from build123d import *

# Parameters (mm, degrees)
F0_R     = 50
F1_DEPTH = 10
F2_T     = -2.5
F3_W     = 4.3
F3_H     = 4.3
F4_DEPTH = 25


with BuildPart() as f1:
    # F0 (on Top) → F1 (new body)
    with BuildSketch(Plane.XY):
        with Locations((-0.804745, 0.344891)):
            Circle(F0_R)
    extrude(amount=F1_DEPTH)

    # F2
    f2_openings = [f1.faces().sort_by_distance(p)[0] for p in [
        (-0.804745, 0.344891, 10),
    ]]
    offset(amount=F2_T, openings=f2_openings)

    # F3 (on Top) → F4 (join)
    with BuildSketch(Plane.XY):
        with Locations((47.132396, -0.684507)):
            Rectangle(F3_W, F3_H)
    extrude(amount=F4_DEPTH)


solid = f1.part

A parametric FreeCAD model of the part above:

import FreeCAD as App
import Part
import Sketcher


def faces_at(feature, points):
    """Names of the faces that lie closest to the given points."""
    faces = feature.Shape.Faces
    near = lambda p: min(range(len(faces)), key=lambda i: faces[i].distToShape(Part.Vertex(*p))[0])
    return sorted({f"Face{near(p) + 1}" for p in points})

doc = App.newDocument("Part")
params = doc.addObject("Spreadsheet::Sheet", "Params")
for row, (alias, value) in enumerate([
    ("sketch1_diameter", "100 mm"),
    ("pad1_length", "10 mm"),
    ("thickness_wall", "2.5 mm"),
    ("sketch2_width", "4.3 mm"),
    ("pad2_length", "25 mm"),
], start=1):
    params.set(f"A{row}", alias)
    params.set(f"B{row}", "=" + value)
    params.setAlias(f"B{row}", alias)

body = doc.addObject("PartDesign::Body", "Body")

sketch1 = doc.addObject("Sketcher::SketchObject", "Sketch")
body.addObject(sketch1)
sketch1.AttachmentSupport = (doc.XY_Plane, [""])
sketch1.MapMode = "FlatFace"
sketch1.addGeometry(Part.Circle(App.Vector(-1, 0, 0), App.Vector(0, 0, 1), 50), False)
sketch1.addConstraint(Sketcher.Constraint("Diameter", 0, 100.0))
sketch1.addConstraint(Sketcher.Constraint("DistanceY", -1, 1, 0, 3, 0.344891))
sketch1.addConstraint(Sketcher.Constraint("DistanceX", 0, 3, -1, 1, 0.804745))
sketch1.setExpression("Constraints[0]", "Params.sketch1_diameter")
pad1 = doc.addObject("PartDesign::Pad", "Pad")
body.addObject(pad1)
pad1.Profile = sketch1
pad1.setExpression("Length", "Params.pad1_length")
doc.recompute()

thickness = doc.addObject("PartDesign::Thickness", "Thickness")
body.addObject(thickness)
thickness.Base = (pad1, faces_at(pad1, [(-0.805, 0.345, 10)]))
thickness.setExpression("Value", "Params.thickness_wall")
thickness.Reversed = True
thickness.Join = "Arc"

sketch2 = doc.addObject("Sketcher::SketchObject", "Sketch001")
body.addObject(sketch2)
sketch2.AttachmentSupport = (doc.XY_Plane, [""])
sketch2.MapMode = "FlatFace"
sketch2.addGeometry(Part.LineSegment(App.Vector(45, 1.5, 0), App.Vector(45, -2.8, 0)), False)
sketch2.addGeometry(Part.LineSegment(App.Vector(45, -2.8, 0), App.Vector(49.3, -2.8, 0)), False)
sketch2.addGeometry(Part.LineSegment(App.Vector(49.3, -2.8, 0), App.Vector(49.3, 1.5, 0)), False)
sketch2.addGeometry(Part.LineSegment(App.Vector(49.3, 1.5, 0), App.Vector(45, 1.5, 0)), False)
sketch2.addConstraint(Sketcher.Constraint("Coincident", 0, 2, 1, 1))
sketch2.addConstraint(Sketcher.Constraint("Coincident", 1, 2, 2, 1))
sketch2.addConstraint(Sketcher.Constraint("Coincident", 2, 2, 3, 1))
sketch2.addConstraint(Sketcher.Constraint("Coincident", 3, 2, 0, 1))
sketch2.addConstraint(Sketcher.Constraint("Vertical", 0))
sketch2.addConstraint(Sketcher.Constraint("Horizontal", 1))
sketch2.addConstraint(Sketcher.Constraint("Vertical", 2))
sketch2.addConstraint(Sketcher.Constraint("Horizontal", 3))
sketch2.addConstraint(Sketcher.Constraint("Equal", 3, 0))
sketch2.addConstraint(Sketcher.Constraint("DistanceX", 1, 1, 1, 2, 4.3))
sketch2.addConstraint(Sketcher.Constraint("DistanceX", -1, 1, 0, 2, 44.982396))
sketch2.addConstraint(Sketcher.Constraint("DistanceY", 0, 2, -1, 1, 2.834507))
sketch2.setExpression("Constraints[9]", "Params.sketch2_width")
pad2 = doc.addObject("PartDesign::Pad", "Pad001")
body.addObject(pad2)
pad2.Profile = sketch2
pad2.setExpression("Length", "Params.pad2_length")

doc.recompute()
